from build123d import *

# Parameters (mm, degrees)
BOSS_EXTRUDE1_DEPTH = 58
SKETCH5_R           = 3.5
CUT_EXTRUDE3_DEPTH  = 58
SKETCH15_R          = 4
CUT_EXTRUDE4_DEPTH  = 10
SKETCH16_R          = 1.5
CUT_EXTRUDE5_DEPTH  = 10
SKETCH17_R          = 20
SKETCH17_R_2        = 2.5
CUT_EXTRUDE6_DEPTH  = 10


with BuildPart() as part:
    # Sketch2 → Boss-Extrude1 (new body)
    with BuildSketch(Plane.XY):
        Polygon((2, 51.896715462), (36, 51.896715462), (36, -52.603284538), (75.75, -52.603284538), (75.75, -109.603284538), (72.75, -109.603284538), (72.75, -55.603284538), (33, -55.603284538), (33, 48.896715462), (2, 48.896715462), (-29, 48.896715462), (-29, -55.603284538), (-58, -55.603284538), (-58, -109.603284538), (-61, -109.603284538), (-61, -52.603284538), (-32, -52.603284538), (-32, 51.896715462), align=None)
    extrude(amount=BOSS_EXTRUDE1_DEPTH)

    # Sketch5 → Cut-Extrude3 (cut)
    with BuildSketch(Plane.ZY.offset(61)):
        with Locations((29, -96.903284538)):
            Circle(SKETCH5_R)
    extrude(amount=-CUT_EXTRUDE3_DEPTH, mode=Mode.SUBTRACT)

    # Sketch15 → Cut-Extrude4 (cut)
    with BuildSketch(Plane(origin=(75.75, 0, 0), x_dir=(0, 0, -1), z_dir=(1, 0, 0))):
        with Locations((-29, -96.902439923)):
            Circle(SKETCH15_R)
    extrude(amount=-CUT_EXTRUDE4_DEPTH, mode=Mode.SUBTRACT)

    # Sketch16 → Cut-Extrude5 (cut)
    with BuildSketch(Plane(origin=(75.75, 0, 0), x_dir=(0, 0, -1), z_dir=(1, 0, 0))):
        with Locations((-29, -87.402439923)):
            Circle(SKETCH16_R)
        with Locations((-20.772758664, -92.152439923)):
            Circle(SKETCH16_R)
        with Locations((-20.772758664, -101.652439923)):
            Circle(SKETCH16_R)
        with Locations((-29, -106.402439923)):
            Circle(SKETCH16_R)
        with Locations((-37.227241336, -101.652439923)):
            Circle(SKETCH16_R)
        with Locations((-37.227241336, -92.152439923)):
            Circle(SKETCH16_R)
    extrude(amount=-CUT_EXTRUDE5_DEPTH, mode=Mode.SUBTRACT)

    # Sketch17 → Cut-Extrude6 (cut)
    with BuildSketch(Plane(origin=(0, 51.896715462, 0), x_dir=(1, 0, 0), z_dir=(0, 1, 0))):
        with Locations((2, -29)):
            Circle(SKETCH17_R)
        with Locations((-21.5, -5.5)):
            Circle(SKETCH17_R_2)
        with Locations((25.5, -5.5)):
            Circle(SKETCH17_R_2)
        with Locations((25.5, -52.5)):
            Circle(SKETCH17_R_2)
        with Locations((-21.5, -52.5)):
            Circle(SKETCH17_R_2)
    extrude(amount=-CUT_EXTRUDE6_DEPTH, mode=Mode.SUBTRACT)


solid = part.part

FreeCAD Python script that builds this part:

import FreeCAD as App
import Part
import Sketcher

doc = App.newDocument("Part")
params = doc.addObject("Spreadsheet::Sheet", "Params")
for row, (alias, value) in enumerate([
    ("sketch1_width", "68 mm"),
    ("sketch1_width2", "29 mm"),
    ("sketch1_width3", "3 mm"),
    ("sketch1_height", "57 mm"),
    ("sketch1_height2", "54 mm"),
    ("pad1_length", "58 mm"),
    ("sketch2_diameter", "7 mm"),
    ("pocket1_length", "58 mm"),
    ("sketch3_diameter", "8 mm"),
    ("pocket2_length", "10 mm"),
    ("sketch4_diameter", "3 mm"),
    ("pocket3_length", "10 mm"),
    ("sketch5_diameter", "40 mm"),
    ("sketch5_diameter2", "5 mm"),
    ("pocket4_length", "10 mm"),
], start=1):
    params.set(f"A{row}", alias)
    params.set(f"B{row}", "=" + value)
    params.setAlias(f"B{row}", alias)

body = doc.addObject("PartDesign::Body", "Body")

sketch1 = body.newObject("Sketcher::SketchObject", "Sketch")
sketch1.AttachmentSupport = (doc.getObject("XY_Plane"), [""])
sketch1.MapMode = "FlatFace"
sketch1.addGeometry([
    Part.LineSegment(App.Vector(36, 51.9, 0), App.Vector(-32, 51.9, 0)),
    Part.LineSegment(App.Vector(-32, 51.9, 0), App.Vector(-32, -52.6, 0)),
    Part.LineSegment(App.Vector(-32, -52.6, 0), App.Vector(-61, -52.6, 0)),
    Part.LineSegment(App.Vector(-61, -52.6, 0), App.Vector(-61, -109.6, 0)),
    Part.LineSegment(App.Vector(-61, -109.6, 0), App.Vector(-58, -109.6, 0)),
    Part.LineSegment(App.Vector(-58, -109.6, 0), App.Vector(-58, -55.6, 0)),
    Part.LineSegment(App.Vector(-58, -55.6, 0), App.Vector(-29, -55.6, 0)),
    Part.LineSegment(App.Vector(-29, -55.6, 0), App.Vector(-29, 48.9, 0)),
    Part.LineSegment(App.Vector(-29, 48.9, 0), App.Vector(33, 48.9, 0)),
    Part.LineSegment(App.Vector(33, 48.9, 0), App.Vector(33, -55.6, 0)),
    Part.LineSegment(App.Vector(33, -55.6, 0), App.Vector(72.8, -55.6, 0)),
    Part.LineSegment(App.Vector(72.8, -55.6, 0), App.Vector(72.8, -109.6, 0)),
    Part.LineSegment(App.Vector(72.8, -109.6, 0), App.Vector(75.8, -109.6, 0)),
    Part.LineSegment(App.Vector(75.8, -109.6, 0), App.Vector(75.8, -52.6, 0)),
    Part.LineSegment(App.Vector(75.8, -52.6, 0), App.Vector(36, -52.6, 0)),
    Part.LineSegment(App.Vector(36, -52.6, 0), App.Vector(36, 51.9, 0)),
], False)
sketch1.addConstraint([
    Sketcher.Constraint("Coincident", 0, 2, 1, 1),
    Sketcher.Constraint("Coincident", 1, 2, 2, 1),
    Sketcher.Constraint("Coincident", 2, 2, 3, 1),
    Sketcher.Constraint("Coincident", 3, 2, 4, 1),
    Sketcher.Constraint("Coincident", 4, 2, 5, 1),
    Sketcher.Constraint("Coincident", 5, 2, 6, 1),
    Sketcher.Constraint("Coincident", 6, 2, 7, 1),
    Sketcher.Constraint("Coincident", 7, 2, 8, 1),
    Sketcher.Constraint("Coincident", 8, 2, 9, 1),
    Sketcher.Constraint("Coincident", 9, 2, 10, 1),
    Sketcher.Constraint("Coincident", 10, 2, 11, 1),
    Sketcher.Constraint("Coincident", 11, 2, 12, 1),
    Sketcher.Constraint("Coincident", 12, 2, 13, 1),
    Sketcher.Constraint("Coincident", 13, 2, 14, 1),
    Sketcher.Constraint("Coincident", 14, 2, 15, 1),
    Sketcher.Constraint("Coincident", 15, 2, 0, 1),
    Sketcher.Constraint("Horizontal", 0),
    Sketcher.Constraint("Vertical", 1),
    Sketcher.Constraint("Horizontal", 2),
    Sketcher.Constraint("Vertical", 3),
    Sketcher.Constraint("Horizontal", 4),
    Sketcher.Constraint("Vertical", 5),
    Sketcher.Constraint("Horizontal", 6),
    Sketcher.Constraint("Vertical", 7),
    Sketcher.Constraint("Horizontal", 8),
    Sketcher.Constraint("Vertical", 9),
    Sketcher.Constraint("Horizontal", 10),
    Sketcher.Constraint("Vertical", 11),
    Sketcher.Constraint("Horizontal", 12),
    Sketcher.Constraint("Vertical", 13),
    Sketcher.Constraint("Horizontal", 14),
    Sketcher.Constraint("Vertical", 15),
    Sketcher.Constraint("Horizontal", 6, 2, 9, 2),
    Sketcher.Constraint("Horizontal", 4, 2, 11, 2),
    Sketcher.Constraint("Horizontal", 2, 2, 13, 2),
    Sketcher.Constraint("Equal", 2, 6),
    Sketcher.Constraint("Equal", 4, 12),
    Sketcher.Constraint("Equal", 10, 14),
    Sketcher.Constraint("Equal", 1, 7),
    Sketcher.Constraint("DistanceX", 0, 2, 0, 1, 68.0),
    Sketcher.Constraint("DistanceX", 2, 2, 2, 1, 29.0),
    Sketcher.Constraint("DistanceX", 4, 1, 4, 2, 3.0),
    Sketcher.Constraint("DistanceY", 3, 2, 3, 1, 57.0),
    Sketcher.Constraint("DistanceY", 5, 1, 5, 2, 54.0),
    Sketcher.Constraint("DistanceY", 1, 2, 1, 1, 104.5),
    Sketcher.Constraint("DistanceX", 0, 2, -1, 1, 32.0),
    Sketcher.Constraint("DistanceX", 10, 1, 10, 2, 39.75),
    Sketcher.Constraint("DistanceY", -1, 1, 0, 2, 51.896715),
])
sketch1.setExpression("Constraints[39]", "Params.sketch1_width")
sketch1.setExpression("Constraints[40]", "Params.sketch1_width2")
sketch1.setExpression("Constraints[41]", "Params.sketch1_width3")
sketch1.setExpression("Constraints[42]", "Params.sketch1_height")
sketch1.setExpression("Constraints[43]", "Params.sketch1_height2")
pad1 = body.newObject("PartDesign::Pad", "Pad")
pad1.Profile = sketch1
pad1.setExpression("Length", "Params.pad1_length")

sketch2 = body.newObject("Sketcher::SketchObject", "Sketch001")
sketch2.AttachmentSupport = (doc.getObject("YZ_Plane"), [""])
sketch2.MapMode = "FlatFace"
sketch2.AttachmentOffset = App.Placement(App.Vector(0, 0, -61), App.Rotation())
sketch2.addGeometry(Part.Circle(App.Vector(-96.9, 29, 0), App.Vector(0, 0, 1), 3.5), False)
sketch2.addConstraint([
    Sketcher.Constraint("Diameter", 0, 7.0),
    Sketcher.Constraint("DistanceY", -1, 1, 0, 3, 29.0),
    Sketcher.Constraint("DistanceX", 0, 3, -1, 1, 96.903285),
])
sketch2.setExpression("Constraints[0]", "Params.sketch2_diameter")
pocket1 = body.newObject("PartDesign::Pocket", "Pocket")
pocket1.Profile = sketch2
pocket1.setExpression("Length", "Params.pocket1_length")
pocket1.Reversed = True

sketch3 = body.newObject("Sketcher::SketchObject", "Sketch002")
sketch3.AttachmentSupport = (doc.getObject("YZ_Plane"), [""])
sketch3.MapMode = "FlatFace"
sketch3.AttachmentOffset = App.Placement(App.Vector(0, 0, 75.75), App.Rotation())
sketch3.addGeometry(Part.Circle(App.Vector(-96.9, 29, 0), App.Vector(0, 0, 1), 4), False)
sketch3.addConstraint([
    Sketcher.Constraint("Diameter", 0, 8.0),
    Sketcher.Constraint("DistanceY", -1, 1, 0, 3, 29.0),
    Sketcher.Constraint("DistanceX", 0, 3, -1, 1, 96.90244),
])
sketch3.setExpression("Constraints[0]", "Params.sketch3_diameter")
pocket2 = body.newObject("PartDesign::Pocket", "Pocket001")
pocket2.Profile = sketch3
pocket2.setExpression("Length", "Params.pocket2_length")

sketch4 = body.newObject("Sketcher::SketchObject", "Sketch003")
sketch4.AttachmentSupport = (doc.getObject("YZ_Plane"), [""])
sketch4.MapMode = "FlatFace"
sketch4.AttachmentOffset = App.Placement(App.Vector(0, 0, 75.75), App.Rotation())
sketch4.addGeometry([
    Part.Circle(App.Vector(-87.4, 29, 0), App.Vector(0, 0, 1), 1.5),
    Part.Circle(App.Vector(-92.2, 20.8, 0), App.Vector(0, 0, 1), 1.5),
    Part.Circle(App.Vector(-101.7, 20.8, 0), App.Vector(0, 0, 1), 1.5),
    Part.Circle(App.Vector(-106.4, 29, 0), App.Vector(0, 0, 1), 1.5),
    Part.Circle(App.Vector(-101.7, 37.2, 0), App.Vector(0, 0, 1), 1.5),
    Part.Circle(App.Vector(-92.2, 37.2, 0), App.Vector(0, 0, 1), 1.5),
], False)
sketch4.addConstraint([
    Sketcher.Constraint("Equal", 0, 1),
    Sketcher.Constraint("Equal", 1, 2),
    Sketcher.Constraint("Equal", 2, 3),
    Sketcher.Constraint("Equal", 3, 4),
    Sketcher.Constraint("Equal", 4, 5),
    Sketcher.Constraint("Horizontal", 1, 3, 2, 3),
    Sketcher.Constraint("Horizontal", 0, 3, 3, 3),
    Sketcher.Constraint("Horizontal", 4, 3, 5, 3),
    Sketcher.Constraint("Vertical", 2, 3, 4, 3),
    Sketcher.Constraint("Vertical", 1, 3, 5, 3),
    Sketcher.Constraint("Diameter", 0, 3.0),
    Sketcher.Constraint("DistanceY", -1, 1, 0, 3, 29.0),
    Sketcher.Constraint("DistanceX", 3, 3, 0, 3, 19.0),
    Sketcher.Constraint("DistanceX", 2, 3, 1, 3, 9.5),
    Sketcher.Constraint("DistanceX", 1, 3, 0, 3, 4.75),
    Sketcher.Constraint("DistanceX", 0, 3, -1, 1, 87.40244),
    Sketcher.Constraint("DistanceY", -1, 1, 1, 3, 20.772759),
    Sketcher.Constraint("DistanceY", -1, 1, 4, 3, 37.227241),
])
sketch4.setExpression("Constraints[10]", "Params.sketch4_diameter")
pocket3 = body.newObject("PartDesign::Pocket", "Pocket002")
pocket3.Profile = sketch4
pocket3.setExpression("Length", "Params.pocket3_length")

sketch5 = body.newObject("Sketcher::SketchObject", "Sketch004")
sketch5.AttachmentSupport = (doc.getObject("XZ_Plane"), [""])
sketch5.MapMode = "FlatFace"
sketch5.AttachmentOffset = App.Placement(App.Vector(0, 0, -51.896715), App.Rotation())
sketch5.addGeometry([
    Part.Circle(App.Vector(2, 29, 0), App.Vector(0, 0, 1), 20),
    Part.Circle(App.Vector(-21.5, 5.5, 0), App.Vector(0, 0, 1), 2.5),
    Part.Circle(App.Vector(25.5, 5.5, 0), App.Vector(0, 0, 1), 2.5),
    Part.Circle(App.Vector(25.5, 52.5, 0), App.Vector(0, 0, 1), 2.5),
    Part.Circle(App.Vector(-21.5, 52.5, 0), App.Vector(0, 0, 1), 2.5),
], False)
sketch5.addConstraint([
    Sketcher.Constraint("Equal", 1, 2),
    Sketcher.Constraint("Equal", 2, 3),
    Sketcher.Constraint("Equal", 3, 4),
    Sketcher.Constraint("Horizontal", 1, 3, 2, 3),
    Sketcher.Constraint("Horizontal", 3, 3, 4, 3),
    Sketcher.Constraint("Vertical", 2, 3, 3, 3),
    Sketcher.Constraint("Vertical", 1, 3, 4, 3),
    Sketcher.Constraint("Diameter", 0, 40.0),
    Sketcher.Constraint("Diameter", 1, 5.0),
    Sketcher.Constraint("DistanceX", -1, 1, 0, 3, 2.0),
    Sketcher.Constraint("DistanceY", -1, 1, 0, 3, 29.0),
    Sketcher.Constraint("DistanceX", 1, 3, 2, 3, 47.0),
    Sketcher.Constraint("DistanceY", 2, 3, 3, 3, 47.0),
    Sketcher.Constraint("DistanceX", 1, 3, -1, 1, 21.5),
    Sketcher.Constraint("DistanceY", -1, 1, 1, 3, 5.5),
])
sketch5.setExpression("Constraints[7]", "Params.sketch5_diameter")
sketch5.setExpression("Constraints[8]", "Params.sketch5_diameter2")
pocket4 = body.newObject("PartDesign::Pocket", "Pocket003")
pocket4.Profile = sketch5
pocket4.setExpression("Length", "Params.pocket4_length")
pocket4.Reversed = True

doc.recompute()
